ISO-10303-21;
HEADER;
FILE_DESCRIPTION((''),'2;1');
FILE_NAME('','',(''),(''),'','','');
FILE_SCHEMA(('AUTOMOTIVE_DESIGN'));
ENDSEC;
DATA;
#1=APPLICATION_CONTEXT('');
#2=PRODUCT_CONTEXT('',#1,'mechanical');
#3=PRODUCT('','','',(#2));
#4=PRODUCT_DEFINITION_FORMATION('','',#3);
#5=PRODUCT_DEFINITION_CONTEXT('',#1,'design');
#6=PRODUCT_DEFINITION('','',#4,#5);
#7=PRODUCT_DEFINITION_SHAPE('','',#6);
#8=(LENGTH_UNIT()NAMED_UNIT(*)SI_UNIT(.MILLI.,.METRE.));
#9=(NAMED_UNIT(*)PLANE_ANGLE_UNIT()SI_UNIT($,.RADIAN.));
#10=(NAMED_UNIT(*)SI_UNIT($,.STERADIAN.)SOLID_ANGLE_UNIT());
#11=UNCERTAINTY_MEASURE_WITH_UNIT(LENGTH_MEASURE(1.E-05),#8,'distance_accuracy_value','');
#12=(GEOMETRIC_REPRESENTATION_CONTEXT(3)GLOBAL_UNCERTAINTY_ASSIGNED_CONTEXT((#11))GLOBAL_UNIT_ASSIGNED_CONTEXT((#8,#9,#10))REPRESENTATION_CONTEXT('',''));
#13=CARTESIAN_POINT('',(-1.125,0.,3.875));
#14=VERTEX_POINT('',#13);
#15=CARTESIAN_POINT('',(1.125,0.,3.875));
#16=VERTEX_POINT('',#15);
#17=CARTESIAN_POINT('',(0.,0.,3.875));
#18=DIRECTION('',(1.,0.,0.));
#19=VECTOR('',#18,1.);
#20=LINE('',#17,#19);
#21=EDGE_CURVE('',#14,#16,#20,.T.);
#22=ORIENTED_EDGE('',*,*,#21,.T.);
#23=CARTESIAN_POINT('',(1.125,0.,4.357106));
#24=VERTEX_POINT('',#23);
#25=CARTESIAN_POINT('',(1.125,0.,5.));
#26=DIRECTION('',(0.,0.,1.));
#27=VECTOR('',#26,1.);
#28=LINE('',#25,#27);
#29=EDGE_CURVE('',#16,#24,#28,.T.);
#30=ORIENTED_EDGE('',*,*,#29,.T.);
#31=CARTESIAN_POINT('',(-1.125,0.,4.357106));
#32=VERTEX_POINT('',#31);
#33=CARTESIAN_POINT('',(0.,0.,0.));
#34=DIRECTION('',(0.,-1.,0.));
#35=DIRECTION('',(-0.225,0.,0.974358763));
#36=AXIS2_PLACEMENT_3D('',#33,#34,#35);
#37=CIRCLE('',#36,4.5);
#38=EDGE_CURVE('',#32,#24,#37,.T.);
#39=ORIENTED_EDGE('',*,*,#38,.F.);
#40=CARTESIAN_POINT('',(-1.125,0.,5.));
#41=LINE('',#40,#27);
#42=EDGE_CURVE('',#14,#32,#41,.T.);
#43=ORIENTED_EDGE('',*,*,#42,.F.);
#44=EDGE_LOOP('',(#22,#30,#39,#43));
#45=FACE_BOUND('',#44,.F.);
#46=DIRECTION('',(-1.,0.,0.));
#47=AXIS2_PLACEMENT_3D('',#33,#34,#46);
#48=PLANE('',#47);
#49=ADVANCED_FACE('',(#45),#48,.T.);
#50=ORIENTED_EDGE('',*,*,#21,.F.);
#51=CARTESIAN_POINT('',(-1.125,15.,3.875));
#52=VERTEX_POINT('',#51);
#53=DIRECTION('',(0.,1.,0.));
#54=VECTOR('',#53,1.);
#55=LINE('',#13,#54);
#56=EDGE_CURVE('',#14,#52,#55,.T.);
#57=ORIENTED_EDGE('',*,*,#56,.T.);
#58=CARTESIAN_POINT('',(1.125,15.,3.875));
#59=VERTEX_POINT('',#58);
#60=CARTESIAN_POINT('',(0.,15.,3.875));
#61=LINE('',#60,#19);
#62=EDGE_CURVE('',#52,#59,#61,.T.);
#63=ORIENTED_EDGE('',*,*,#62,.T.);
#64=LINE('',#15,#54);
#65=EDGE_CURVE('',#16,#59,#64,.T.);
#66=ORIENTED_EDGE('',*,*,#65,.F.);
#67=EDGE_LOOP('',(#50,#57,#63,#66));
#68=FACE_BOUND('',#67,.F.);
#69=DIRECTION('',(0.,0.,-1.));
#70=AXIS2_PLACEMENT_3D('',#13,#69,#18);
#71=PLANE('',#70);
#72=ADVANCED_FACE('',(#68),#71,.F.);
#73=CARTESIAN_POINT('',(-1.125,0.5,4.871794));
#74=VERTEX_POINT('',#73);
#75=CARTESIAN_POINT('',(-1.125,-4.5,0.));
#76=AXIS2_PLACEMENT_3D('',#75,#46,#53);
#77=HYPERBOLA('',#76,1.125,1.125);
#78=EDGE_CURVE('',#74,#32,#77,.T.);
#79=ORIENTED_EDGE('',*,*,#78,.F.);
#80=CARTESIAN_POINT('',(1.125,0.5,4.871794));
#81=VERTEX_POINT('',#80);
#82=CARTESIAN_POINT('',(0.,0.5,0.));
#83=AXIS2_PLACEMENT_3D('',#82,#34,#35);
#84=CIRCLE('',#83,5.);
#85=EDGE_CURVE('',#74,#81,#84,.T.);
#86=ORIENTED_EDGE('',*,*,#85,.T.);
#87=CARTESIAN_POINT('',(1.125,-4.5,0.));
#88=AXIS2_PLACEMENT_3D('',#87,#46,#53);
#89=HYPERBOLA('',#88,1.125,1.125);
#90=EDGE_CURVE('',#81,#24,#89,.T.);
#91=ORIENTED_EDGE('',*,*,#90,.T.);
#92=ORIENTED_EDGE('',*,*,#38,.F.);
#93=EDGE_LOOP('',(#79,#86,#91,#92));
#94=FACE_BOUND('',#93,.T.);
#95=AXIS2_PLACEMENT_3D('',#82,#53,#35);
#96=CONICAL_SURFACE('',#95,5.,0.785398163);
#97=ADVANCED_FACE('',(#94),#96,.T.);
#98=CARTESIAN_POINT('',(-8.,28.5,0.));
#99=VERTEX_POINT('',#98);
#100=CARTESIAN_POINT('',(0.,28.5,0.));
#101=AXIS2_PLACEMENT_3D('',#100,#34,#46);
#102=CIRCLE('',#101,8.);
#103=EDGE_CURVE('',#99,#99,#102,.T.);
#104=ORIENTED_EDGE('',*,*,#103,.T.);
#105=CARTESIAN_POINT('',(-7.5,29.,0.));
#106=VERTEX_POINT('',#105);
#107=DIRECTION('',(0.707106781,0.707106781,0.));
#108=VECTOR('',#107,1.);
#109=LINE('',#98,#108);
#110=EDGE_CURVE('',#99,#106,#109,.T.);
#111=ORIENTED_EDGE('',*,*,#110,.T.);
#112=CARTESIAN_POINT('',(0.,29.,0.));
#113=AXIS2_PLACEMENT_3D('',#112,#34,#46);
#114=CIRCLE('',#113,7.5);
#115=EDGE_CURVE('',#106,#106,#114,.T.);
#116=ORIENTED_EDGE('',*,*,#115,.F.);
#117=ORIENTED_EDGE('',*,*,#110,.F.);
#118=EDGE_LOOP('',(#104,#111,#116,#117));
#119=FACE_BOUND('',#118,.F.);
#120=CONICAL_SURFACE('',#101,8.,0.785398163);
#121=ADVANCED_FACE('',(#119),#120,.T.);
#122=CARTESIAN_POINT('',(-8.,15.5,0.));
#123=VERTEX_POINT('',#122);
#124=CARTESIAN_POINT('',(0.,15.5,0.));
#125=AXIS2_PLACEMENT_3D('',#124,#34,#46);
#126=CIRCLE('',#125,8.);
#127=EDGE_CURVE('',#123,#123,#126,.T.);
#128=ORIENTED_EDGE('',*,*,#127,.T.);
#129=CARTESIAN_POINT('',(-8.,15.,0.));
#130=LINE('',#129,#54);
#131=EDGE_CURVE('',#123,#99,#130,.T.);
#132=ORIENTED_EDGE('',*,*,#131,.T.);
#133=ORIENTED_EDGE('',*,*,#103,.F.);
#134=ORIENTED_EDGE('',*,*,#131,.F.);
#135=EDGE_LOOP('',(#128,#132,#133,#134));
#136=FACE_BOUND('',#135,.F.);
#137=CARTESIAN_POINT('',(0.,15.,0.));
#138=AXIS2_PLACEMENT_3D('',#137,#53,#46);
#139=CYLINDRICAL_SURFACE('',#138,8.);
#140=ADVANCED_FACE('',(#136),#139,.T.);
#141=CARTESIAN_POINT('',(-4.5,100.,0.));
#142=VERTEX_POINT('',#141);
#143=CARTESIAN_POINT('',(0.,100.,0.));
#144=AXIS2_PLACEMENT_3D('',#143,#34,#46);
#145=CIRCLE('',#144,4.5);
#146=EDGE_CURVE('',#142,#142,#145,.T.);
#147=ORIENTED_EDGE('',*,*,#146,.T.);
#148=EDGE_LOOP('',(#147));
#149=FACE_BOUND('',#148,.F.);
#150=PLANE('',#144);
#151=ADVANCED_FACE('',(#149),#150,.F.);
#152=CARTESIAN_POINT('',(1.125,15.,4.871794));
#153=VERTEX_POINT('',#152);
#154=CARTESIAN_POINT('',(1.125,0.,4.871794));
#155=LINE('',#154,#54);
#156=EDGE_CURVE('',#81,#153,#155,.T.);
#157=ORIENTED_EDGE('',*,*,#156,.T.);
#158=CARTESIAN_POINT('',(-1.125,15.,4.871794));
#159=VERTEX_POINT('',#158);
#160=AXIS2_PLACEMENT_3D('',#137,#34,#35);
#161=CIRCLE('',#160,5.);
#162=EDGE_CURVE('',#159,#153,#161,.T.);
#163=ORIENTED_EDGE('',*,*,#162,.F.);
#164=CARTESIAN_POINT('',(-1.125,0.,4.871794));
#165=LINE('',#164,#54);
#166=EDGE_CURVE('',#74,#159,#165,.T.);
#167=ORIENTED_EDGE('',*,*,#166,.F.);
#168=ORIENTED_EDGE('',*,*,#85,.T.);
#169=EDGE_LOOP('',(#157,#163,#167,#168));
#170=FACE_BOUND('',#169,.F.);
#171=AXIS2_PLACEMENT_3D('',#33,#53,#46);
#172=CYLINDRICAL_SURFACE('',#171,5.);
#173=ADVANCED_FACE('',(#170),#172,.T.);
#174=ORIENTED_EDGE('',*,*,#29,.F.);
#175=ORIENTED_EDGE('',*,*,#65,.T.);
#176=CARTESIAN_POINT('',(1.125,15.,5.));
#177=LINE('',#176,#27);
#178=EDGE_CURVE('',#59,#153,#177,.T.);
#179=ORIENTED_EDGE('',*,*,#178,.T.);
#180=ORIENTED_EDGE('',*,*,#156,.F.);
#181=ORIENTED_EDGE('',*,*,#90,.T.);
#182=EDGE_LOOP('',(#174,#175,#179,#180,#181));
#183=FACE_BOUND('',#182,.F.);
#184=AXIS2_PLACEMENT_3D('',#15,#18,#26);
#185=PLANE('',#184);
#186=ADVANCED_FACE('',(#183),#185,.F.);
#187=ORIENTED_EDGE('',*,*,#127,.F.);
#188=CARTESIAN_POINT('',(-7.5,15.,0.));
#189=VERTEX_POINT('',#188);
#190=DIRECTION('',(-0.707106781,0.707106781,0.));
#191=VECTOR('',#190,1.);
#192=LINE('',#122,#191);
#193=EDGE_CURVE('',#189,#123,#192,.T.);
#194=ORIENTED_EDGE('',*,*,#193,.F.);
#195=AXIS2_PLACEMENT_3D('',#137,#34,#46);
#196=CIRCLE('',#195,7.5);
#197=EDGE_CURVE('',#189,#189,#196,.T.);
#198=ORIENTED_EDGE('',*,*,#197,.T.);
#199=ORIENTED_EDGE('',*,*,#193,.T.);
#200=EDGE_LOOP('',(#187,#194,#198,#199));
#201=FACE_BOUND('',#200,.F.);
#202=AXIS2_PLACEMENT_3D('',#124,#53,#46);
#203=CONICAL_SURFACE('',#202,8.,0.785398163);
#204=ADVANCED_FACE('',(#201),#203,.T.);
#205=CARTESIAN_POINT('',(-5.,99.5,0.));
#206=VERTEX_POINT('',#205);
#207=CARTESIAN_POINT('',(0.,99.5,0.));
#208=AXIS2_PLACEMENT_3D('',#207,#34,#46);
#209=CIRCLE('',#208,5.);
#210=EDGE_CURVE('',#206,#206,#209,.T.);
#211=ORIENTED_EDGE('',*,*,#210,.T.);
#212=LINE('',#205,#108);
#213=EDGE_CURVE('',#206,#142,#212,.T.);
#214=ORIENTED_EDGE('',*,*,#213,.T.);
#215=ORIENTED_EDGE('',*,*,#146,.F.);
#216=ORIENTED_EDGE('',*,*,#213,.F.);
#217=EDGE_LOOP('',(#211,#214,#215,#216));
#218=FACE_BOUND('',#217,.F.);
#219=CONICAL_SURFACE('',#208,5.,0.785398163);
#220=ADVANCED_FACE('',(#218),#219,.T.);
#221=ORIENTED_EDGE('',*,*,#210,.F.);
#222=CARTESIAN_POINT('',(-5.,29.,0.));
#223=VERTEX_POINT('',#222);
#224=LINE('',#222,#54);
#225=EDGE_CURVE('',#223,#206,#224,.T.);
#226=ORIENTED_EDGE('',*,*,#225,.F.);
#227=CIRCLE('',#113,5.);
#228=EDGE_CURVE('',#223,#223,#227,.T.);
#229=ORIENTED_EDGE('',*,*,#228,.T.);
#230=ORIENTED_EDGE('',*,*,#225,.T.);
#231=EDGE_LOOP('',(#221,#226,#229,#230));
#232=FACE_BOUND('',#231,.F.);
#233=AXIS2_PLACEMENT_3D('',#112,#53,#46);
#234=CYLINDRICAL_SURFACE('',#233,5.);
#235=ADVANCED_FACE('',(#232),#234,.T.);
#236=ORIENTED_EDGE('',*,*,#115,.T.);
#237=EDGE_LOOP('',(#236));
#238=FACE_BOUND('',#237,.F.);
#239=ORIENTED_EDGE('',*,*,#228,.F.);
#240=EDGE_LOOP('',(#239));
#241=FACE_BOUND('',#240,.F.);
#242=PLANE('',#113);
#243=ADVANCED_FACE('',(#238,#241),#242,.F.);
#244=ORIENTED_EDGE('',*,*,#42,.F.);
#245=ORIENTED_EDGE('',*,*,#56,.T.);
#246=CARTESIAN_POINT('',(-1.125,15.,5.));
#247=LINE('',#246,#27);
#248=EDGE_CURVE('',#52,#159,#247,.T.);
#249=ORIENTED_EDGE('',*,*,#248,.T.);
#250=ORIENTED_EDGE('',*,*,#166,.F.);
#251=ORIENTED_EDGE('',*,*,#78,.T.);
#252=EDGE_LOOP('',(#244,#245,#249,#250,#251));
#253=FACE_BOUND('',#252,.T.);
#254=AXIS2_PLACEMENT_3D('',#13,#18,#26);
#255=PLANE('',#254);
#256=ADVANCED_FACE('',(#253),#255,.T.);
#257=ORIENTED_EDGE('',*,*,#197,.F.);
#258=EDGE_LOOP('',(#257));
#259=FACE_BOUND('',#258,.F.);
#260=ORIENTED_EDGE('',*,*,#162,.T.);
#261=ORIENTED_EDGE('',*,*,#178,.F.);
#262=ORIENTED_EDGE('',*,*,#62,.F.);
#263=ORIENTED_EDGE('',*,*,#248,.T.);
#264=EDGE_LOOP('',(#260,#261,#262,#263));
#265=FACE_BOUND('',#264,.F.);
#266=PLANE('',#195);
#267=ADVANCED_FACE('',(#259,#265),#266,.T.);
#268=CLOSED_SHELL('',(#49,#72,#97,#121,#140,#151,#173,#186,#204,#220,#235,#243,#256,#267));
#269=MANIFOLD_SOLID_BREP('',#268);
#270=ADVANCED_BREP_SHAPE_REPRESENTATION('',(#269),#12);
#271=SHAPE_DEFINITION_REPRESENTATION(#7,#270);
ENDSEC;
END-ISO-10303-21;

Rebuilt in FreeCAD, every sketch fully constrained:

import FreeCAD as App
import Part
import Sketcher
from FreeCAD import Vector


def edges_at(feature, points):
    """Names of the edges that pass closest to the given points."""
    edges = feature.Shape.Edges
    near = lambda p: min(range(len(edges)), key=lambda i: edges[i].distToShape(Part.Vertex(*p))[0])
    return sorted({f"Edge{near(p) + 1}" for p in points})

doc = App.newDocument("Part")
body = doc.addObject("PartDesign::Body", "Body")

# Sketch on XY plane
sketch1 = body.newObject("Sketcher::SketchObject", "Sketch")
sketch1.AttachmentSupport = (doc.getObject("XY_Plane"), [""])
sketch1.MapMode = "FlatFace"
sketch1.addGeometry(Part.LineSegment(Vector(0, 0, 0), Vector(5, 0, 0)), False)
sketch1.addGeometry(Part.LineSegment(Vector(5, 0, 0), Vector(5, 15, 0)), False)
sketch1.addGeometry(Part.LineSegment(Vector(5, 15, 0), Vector(8, 15, 0)), False)
sketch1.addGeometry(Part.LineSegment(Vector(8, 15, 0), Vector(8, 29, 0)), False)
sketch1.addGeometry(Part.LineSegment(Vector(8, 29, 0), Vector(5, 29, 0)), False)
sketch1.addGeometry(Part.LineSegment(Vector(5, 29, 0), Vector(5, 100, 0)), False)
sketch1.addGeometry(Part.LineSegment(Vector(5, 100, 0), Vector(0, 100, 0)), False)
sketch1.addGeometry(Part.LineSegment(Vector(0, 100, 0), Vector(0, 0, 0)), False)
sketch1.addConstraint(Sketcher.Constraint("Coincident", 0, 2, 1, 1))
sketch1.addConstraint(Sketcher.Constraint("Coincident", 1, 2, 2, 1))
sketch1.addConstraint(Sketcher.Constraint("Coincident", 2, 2, 3, 1))
sketch1.addConstraint(Sketcher.Constraint("Coincident", 3, 2, 4, 1))
sketch1.addConstraint(Sketcher.Constraint("Coincident", 4, 2, 5, 1))
sketch1.addConstraint(Sketcher.Constraint("Coincident", 5, 2, 6, 1))
sketch1.addConstraint(Sketcher.Constraint("Coincident", 6, 2, 7, 1))
sketch1.addConstraint(Sketcher.Constraint("Coincident", 7, 2, 0, 1))
sketch1.addConstraint(Sketcher.Constraint("Horizontal", 0))
sketch1.addConstraint(Sketcher.Constraint("Vertical", 1))
sketch1.addConstraint(Sketcher.Constraint("Horizontal", 2))
sketch1.addConstraint(Sketcher.Constraint("Vertical", 3))
sketch1.addConstraint(Sketcher.Constraint("Horizontal", 4))
sketch1.addConstraint(Sketcher.Constraint("Vertical", 5))
sketch1.addConstraint(Sketcher.Constraint("Horizontal", 6))
sketch1.addConstraint(Sketcher.Constraint("Vertical", 7))
sketch1.addConstraint(Sketcher.Constraint("Coincident", 7, 2, -1, 1))
sketch1.addConstraint(Sketcher.Constraint("Vertical", 1, 2, 4, 2))
sketch1.addConstraint(Sketcher.Constraint("DistanceX", 0, 1, 0, 2, 5.0))
sketch1.addConstraint(Sketcher.Constraint("DistanceX", 2, 1, 2, 2, 3.0))
sketch1.addConstraint(Sketcher.Constraint("DistanceY", 1, 1, 1, 2, 15.0))
sketch1.addConstraint(Sketcher.Constraint("DistanceY", 3, 1, 3, 2, 14.0))
sketch1.addConstraint(Sketcher.Constraint("DistanceY", 5, 1, 5, 2, 71.0))
revolution = body.newObject("PartDesign::Revolution", "Revolution")
revolution.Profile = sketch1
revolution.ReferenceAxis = (sketch1, ["V_Axis"])
revolution.Angle = 360

# Sketch on XZ plane
sketch2 = body.newObject("Sketcher::SketchObject", "Sketch001")
sketch2.AttachmentSupport = (doc.getObject("XZ_Plane"), [""])
sketch2.MapMode = "FlatFace"
sketch2.addGeometry(Part.LineSegment(Vector(-1.1, 6.1, 0), Vector(-1.1, 3.9, 0)), False)
sketch2.addGeometry(Part.LineSegment(Vector(-1.1, 3.9, 0), Vector(1.1, 3.9, 0)), False)
sketch2.addGeometry(Part.LineSegment(Vector(1.1, 3.9, 0), Vector(1.1, 6.1, 0)), False)
sketch2.addGeometry(Part.LineSegment(Vector(1.1, 6.1, 0), Vector(-1.1, 6.1, 0)), False)
sketch2.addConstraint(Sketcher.Constraint("Coincident", 0, 2, 1, 1))
sketch2.addConstraint(Sketcher.Constraint("Coincident", 1, 2, 2, 1))
sketch2.addConstraint(Sketcher.Constraint("Coincident", 2, 2, 3, 1))
sketch2.addConstraint(Sketcher.Constraint("Coincident", 3, 2, 0, 1))
sketch2.addConstraint(Sketcher.Constraint("Vertical", 0))
sketch2.addConstraint(Sketcher.Constraint("Horizontal", 1))
sketch2.addConstraint(Sketcher.Constraint("Vertical", 2))
sketch2.addConstraint(Sketcher.Constraint("Horizontal", 3))
sketch2.addConstraint(Sketcher.Constraint("Equal", 3, 0))
sketch2.addConstraint(Sketcher.Constraint("DistanceX", 1, 1, 1, 2, 2.25))
sketch2.addConstraint(Sketcher.Constraint("DistanceX", 0, 2, -1, 1, 1.125))
sketch2.addConstraint(Sketcher.Constraint("DistanceY", -1, 1, 0, 2, 3.875))
pocket1 = body.newObject("PartDesign::Pocket", "Pocket")
pocket1.Profile = sketch2
pocket1.Length = 15
doc.recompute()

chamfer = body.newObject("PartDesign::Chamfer", "Chamfer")
chamfer.Base = (pocket1, edges_at(pocket1, [(8, 29, 0), (8, 15, 0)]))
chamfer.Size = 0.5
doc.recompute()

chamfer2 = body.newObject("PartDesign::Chamfer", "Chamfer001")
chamfer2.Base = (chamfer, edges_at(chamfer, [(0, 0, -5), (5, 100, 0)]))
chamfer2.Size = 0.5

doc.recompute()
